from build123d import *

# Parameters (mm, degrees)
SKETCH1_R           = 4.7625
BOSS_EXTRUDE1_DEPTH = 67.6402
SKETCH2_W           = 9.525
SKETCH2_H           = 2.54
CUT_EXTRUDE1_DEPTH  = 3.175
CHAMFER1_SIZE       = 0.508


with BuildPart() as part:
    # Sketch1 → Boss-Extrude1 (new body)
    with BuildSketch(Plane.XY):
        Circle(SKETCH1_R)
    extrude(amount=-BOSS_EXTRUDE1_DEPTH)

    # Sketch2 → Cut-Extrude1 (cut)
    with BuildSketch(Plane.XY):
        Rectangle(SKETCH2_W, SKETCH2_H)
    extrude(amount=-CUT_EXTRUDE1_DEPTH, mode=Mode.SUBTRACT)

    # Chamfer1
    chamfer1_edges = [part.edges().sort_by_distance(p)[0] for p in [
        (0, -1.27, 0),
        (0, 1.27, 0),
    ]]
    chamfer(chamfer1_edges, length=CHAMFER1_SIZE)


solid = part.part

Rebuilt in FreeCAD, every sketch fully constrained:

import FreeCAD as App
import Part
import Sketcher

V = App.Vector
Q = App.Units.Quantity


def edges_at(feature, points):
    """Names of the edges that pass closest to the given points."""
    edges = feature.Shape.Edges
    near = lambda p: min(range(len(edges)), key=lambda i: edges[i].distToShape(Part.Vertex(*p))[0])
    return sorted({f"Edge{near(p) + 1}" for p in points})


def add_polygon(sketch, points):
    """Adds a closed chain of lines whose ends are joined by coincident constraints."""
    first, n = sketch.GeometryCount, len(points)
    for a, b in zip(points, points[1:] + points[:1]):
        sketch.addGeometry(Part.LineSegment(App.Vector(*a, 0), App.Vector(*b, 0)), False)
    for i in range(n):
        sketch.addConstraint(Sketcher.Constraint("Coincident", first + i, 2, first + (i + 1) % n, 1))

doc = App.newDocument("Part")
body = doc.addObject("PartDesign::Body", "Body")

# Sketch on XY plane
sketch1 = doc.addObject("Sketcher::SketchObject", "Sketch")
body.addObject(sketch1)
sketch1.AttachmentSupport = (doc.XY_Plane, [""])
sketch1.MapMode = "FlatFace"
sketch1.addGeometry(Part.Circle(V(0, 0, 0), V(0, 0, 1), 4.7625), False)
sketch1.addConstraint([
    Sketcher.Constraint("Coincident", 0, 3, -1, 1),
    Sketcher.Constraint("Diameter", 0, Q("0.375 in")),
])
pad1 = doc.addObject("PartDesign::Pad", "Pad")
body.addObject(pad1)
pad1.Profile = sketch1
pad1.Length = Q("2.663 in")
pad1.Reversed = True

# Sketch on XY plane
sketch2 = doc.addObject("Sketcher::SketchObject", "Sketch001")
body.addObject(sketch2)
sketch2.AttachmentSupport = (doc.XY_Plane, [""])
sketch2.MapMode = "FlatFace"
add_polygon(sketch2, [(-4.7625, 1.27), (-4.7625, -1.27), (4.7625, -1.27), (4.7625, 1.27)])  # lines 0-3
sketch2.addConstraint([
    Sketcher.Constraint("Vertical", 0),
    Sketcher.Constraint("Horizontal", 1),
    Sketcher.Constraint("Vertical", 2),
    Sketcher.Constraint("Horizontal", 3),
    Sketcher.Constraint("Symmetric", 0, 2, 2, 2, -1, 1),
    Sketcher.Constraint("DistanceY", 0, 2, 0, 1, Q("0.1 in")),
    Sketcher.Constraint("DistanceX", 1, 1, 1, 2, Q("0.375 in")),
])
pocket1 = doc.addObject("PartDesign::Pocket", "Pocket")
body.addObject(pocket1)
pocket1.Profile = sketch2
pocket1.Length = Q("0.125 in")
doc.recompute()

chamfer = doc.addObject("PartDesign::Chamfer", "Chamfer")
body.addObject(chamfer)
chamfer.Base = (pocket1, edges_at(pocket1, [(0, -1.27, 0), (0, 1.27, 0)]))
chamfer.Size = Q("0.02 in")

doc.recompute()
